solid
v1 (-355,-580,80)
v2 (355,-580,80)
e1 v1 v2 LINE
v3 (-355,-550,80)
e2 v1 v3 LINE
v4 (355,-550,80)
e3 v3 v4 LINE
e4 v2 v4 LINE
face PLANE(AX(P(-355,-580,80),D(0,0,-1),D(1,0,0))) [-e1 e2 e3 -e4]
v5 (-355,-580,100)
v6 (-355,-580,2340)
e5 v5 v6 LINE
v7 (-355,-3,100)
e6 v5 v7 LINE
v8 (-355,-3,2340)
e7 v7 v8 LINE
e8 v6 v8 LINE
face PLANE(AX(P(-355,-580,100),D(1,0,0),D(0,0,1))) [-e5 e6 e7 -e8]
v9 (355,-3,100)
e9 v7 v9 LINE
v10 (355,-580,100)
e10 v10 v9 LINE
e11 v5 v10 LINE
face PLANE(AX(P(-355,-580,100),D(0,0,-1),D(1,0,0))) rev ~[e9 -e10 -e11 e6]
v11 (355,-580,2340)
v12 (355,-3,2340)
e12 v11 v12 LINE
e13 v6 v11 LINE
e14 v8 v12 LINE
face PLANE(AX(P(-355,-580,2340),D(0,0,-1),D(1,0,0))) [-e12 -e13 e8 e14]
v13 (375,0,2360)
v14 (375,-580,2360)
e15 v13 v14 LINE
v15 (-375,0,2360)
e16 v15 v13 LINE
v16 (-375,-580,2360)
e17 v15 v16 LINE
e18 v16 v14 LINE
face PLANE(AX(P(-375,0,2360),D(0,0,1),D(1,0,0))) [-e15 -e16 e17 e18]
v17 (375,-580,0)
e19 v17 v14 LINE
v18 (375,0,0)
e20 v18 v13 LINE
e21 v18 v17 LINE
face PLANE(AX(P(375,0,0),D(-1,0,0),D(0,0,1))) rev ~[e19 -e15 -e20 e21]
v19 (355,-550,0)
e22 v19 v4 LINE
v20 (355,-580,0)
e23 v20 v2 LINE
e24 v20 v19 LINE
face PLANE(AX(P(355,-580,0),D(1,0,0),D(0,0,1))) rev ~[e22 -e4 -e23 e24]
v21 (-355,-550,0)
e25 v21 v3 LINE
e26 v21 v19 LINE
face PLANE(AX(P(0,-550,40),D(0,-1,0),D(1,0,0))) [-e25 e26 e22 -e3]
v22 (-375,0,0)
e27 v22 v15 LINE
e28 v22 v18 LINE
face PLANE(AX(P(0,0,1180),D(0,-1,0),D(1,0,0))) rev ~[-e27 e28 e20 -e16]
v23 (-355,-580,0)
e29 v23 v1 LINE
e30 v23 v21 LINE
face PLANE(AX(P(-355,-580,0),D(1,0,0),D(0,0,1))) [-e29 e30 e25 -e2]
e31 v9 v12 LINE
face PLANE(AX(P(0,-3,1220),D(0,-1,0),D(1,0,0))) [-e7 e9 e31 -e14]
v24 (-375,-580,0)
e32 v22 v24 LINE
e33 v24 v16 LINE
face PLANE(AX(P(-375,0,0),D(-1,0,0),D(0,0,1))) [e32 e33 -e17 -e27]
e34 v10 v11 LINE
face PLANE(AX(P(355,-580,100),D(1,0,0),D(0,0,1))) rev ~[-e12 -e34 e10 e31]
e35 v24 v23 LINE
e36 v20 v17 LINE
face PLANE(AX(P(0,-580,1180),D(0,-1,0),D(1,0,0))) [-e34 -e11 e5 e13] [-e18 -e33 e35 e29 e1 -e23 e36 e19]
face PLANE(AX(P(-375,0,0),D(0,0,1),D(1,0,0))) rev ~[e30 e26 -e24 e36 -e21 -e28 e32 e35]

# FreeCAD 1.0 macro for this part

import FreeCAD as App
import Part
import Sketcher
Q = App.Units.Quantity

doc = App.newDocument("Part")
params = doc.addObject("Spreadsheet::Sheet", "Params")
for row, (alias, value) in enumerate([
    ("sketch1_width", "750 mm"),
    ("sketch1_height", "2360 mm"),
    ("pad1_length", "580 mm"),
    ("sketch2_width", "710 mm"),
    ("sketch2_height", "2240 mm"),
    ("pocket1_length", "577 mm"),
    ("sketch3_width", "710 mm"),
    ("sketch3_height", "80 mm"),
    ("pocket2_length", "30 mm"),
], start=1):
    params.set(f"A{row}", alias)
    params.set(f"B{row}", "=" + value)
    params.setAlias(f"B{row}", alias)

body = doc.addObject("PartDesign::Body", "Body")

# Sketch on XZ plane
sketch1 = body.newObject("Sketcher::SketchObject", "Sketch")
sketch1.AttachmentSupport = (doc.getObject("XZ_Plane"), [""])
sketch1.MapMode = "FlatFace"
sketch1.addGeometry([
    Part.LineSegment(App.Vector(-375, 2360, 0), App.Vector(-375, 0, 0)),
    Part.LineSegment(App.Vector(-375, 0, 0), App.Vector(375, 0, 0)),
    Part.LineSegment(App.Vector(375, 0, 0), App.Vector(375, 2360, 0)),
    Part.LineSegment(App.Vector(375, 2360, 0), App.Vector(-375, 2360, 0)),
], False)
sketch1.addConstraint([
    Sketcher.Constraint("Coincident", 0, 2, 1, 1),
    Sketcher.Constraint("Coincident", 1, 2, 2, 1),
    Sketcher.Constraint("Coincident", 2, 2, 3, 1),
    Sketcher.Constraint("Coincident", 3, 2, 0, 1),
    Sketcher.Constraint("Vertical", 0),
    Sketcher.Constraint("Horizontal", 1),
    Sketcher.Constraint("Vertical", 2),
    Sketcher.Constraint("Horizontal", 3),
    Sketcher.Constraint("Symmetric", 0, 2, 1, 2, -1, 1),
    Sketcher.Constraint("DistanceX", 1, 1, 1, 2, Q("750 mm")),
    Sketcher.Constraint("DistanceY", 0, 2, 0, 1, Q("2360 mm")),
])
sketch1.setExpression("Constraints[9]", "Params.sketch1_width")
sketch1.setExpression("Constraints[10]", "Params.sketch1_height")
pad1 = body.newObject("PartDesign::Pad", "Pad")
pad1.Profile = sketch1
pad1.setExpression("Length", "Params.pad1_length")

# Sketch on XZ plane
sketch2 = body.newObject("Sketcher::SketchObject", "Sketch001")
sketch2.AttachmentSupport = (doc.getObject("XZ_Plane"), [""])
sketch2.MapMode = "FlatFace"
sketch2.AttachmentOffset = App.Placement(App.Vector(0, 0, 580), App.Rotation())
sketch2.addGeometry([
    Part.LineSegment(App.Vector(-355, 2340, 0), App.Vector(-355, 100, 0)),
    Part.LineSegment(App.Vector(-355, 100, 0), App.Vector(355, 100, 0)),
    Part.LineSegment(App.Vector(355, 100, 0), App.Vector(355, 2340, 0)),
    Part.LineSegment(App.Vector(355, 2340, 0), App.Vector(-355, 2340, 0)),
], False)
sketch2.addConstraint([
    Sketcher.Constraint("Coincident", 0, 2, 1, 1),
    Sketcher.Constraint("Coincident", 1, 2, 2, 1),
    Sketcher.Constraint("Coincident", 2, 2, 3, 1),
    Sketcher.Constraint("Coincident", 3, 2, 0, 1),
    Sketcher.Constraint("Vertical", 0),
    Sketcher.Constraint("Horizontal", 1),
    Sketcher.Constraint("Vertical", 2),
    Sketcher.Constraint("Horizontal", 3),
    Sketcher.Constraint("DistanceX", 1, 1, 1, 2, Q("710 mm")),
    Sketcher.Constraint("DistanceY", 0, 2, 0, 1, Q("2240 mm")),
    Sketcher.Constraint("DistanceX", 0, 2, -1, 1, Q("355 mm")),
    Sketcher.Constraint("DistanceY", -1, 1, 0, 2, Q("100 mm")),
])
sketch2.setExpression("Constraints[8]", "Params.sketch2_width")
sketch2.setExpression("Constraints[9]", "Params.sketch2_height")
pocket1 = body.newObject("PartDesign::Pocket", "Pocket")
pocket1.Profile = sketch2
pocket1.setExpression("Length", "Params.pocket1_length")

# Sketch on XZ plane
sketch3 = body.newObject("Sketcher::SketchObject", "Sketch002")
sketch3.AttachmentSupport = (doc.getObject("XZ_Plane"), [""])
sketch3.MapMode = "FlatFace"
sketch3.AttachmentOffset = App.Placement(App.Vector(0, 0, 580), App.Rotation())
sketch3.addGeometry([
    Part.LineSegment(App.Vector(-355, 80, 0), App.Vector(-355, 0, 0)),
    Part.LineSegment(App.Vector(-355, 0, 0), App.Vector(355, 0, 0)),
    Part.LineSegment(App.Vector(355, 0, 0), App.Vector(355, 80, 0)),
    Part.LineSegment(App.Vector(355, 80, 0), App.Vector(-355, 80, 0)),
], False)
sketch3.addConstraint([
    Sketcher.Constraint("Coincident", 0, 2, 1, 1),
    Sketcher.Constraint("Coincident", 1, 2, 2, 1),
    Sketcher.Constraint("Coincident", 2, 2, 3, 1),
    Sketcher.Constraint("Coincident", 3, 2, 0, 1),
    Sketcher.Constraint("Vertical", 0),
    Sketcher.Constraint("Horizontal", 1),
    Sketcher.Constraint("Vertical", 2),
    Sketcher.Constraint("Horizontal", 3),
    Sketcher.Constraint("Symmetric", 0, 2, 1, 2, -1, 1),
    Sketcher.Constraint("DistanceX", 1, 1, 1, 2, Q("710 mm")),
    Sketcher.Constraint("DistanceY", 0, 2, 0, 1, Q("80 mm")),
])
sketch3.setExpression("Constraints[9]", "Params.sketch3_width")
sketch3.setExpression("Constraints[10]", "Params.sketch3_height")
pocket2 = body.newObject("PartDesign::Pocket", "Pocket001")
pocket2.Profile = sketch3
pocket2.setExpression("Length", "Params.pocket2_length")

doc.recompute()
